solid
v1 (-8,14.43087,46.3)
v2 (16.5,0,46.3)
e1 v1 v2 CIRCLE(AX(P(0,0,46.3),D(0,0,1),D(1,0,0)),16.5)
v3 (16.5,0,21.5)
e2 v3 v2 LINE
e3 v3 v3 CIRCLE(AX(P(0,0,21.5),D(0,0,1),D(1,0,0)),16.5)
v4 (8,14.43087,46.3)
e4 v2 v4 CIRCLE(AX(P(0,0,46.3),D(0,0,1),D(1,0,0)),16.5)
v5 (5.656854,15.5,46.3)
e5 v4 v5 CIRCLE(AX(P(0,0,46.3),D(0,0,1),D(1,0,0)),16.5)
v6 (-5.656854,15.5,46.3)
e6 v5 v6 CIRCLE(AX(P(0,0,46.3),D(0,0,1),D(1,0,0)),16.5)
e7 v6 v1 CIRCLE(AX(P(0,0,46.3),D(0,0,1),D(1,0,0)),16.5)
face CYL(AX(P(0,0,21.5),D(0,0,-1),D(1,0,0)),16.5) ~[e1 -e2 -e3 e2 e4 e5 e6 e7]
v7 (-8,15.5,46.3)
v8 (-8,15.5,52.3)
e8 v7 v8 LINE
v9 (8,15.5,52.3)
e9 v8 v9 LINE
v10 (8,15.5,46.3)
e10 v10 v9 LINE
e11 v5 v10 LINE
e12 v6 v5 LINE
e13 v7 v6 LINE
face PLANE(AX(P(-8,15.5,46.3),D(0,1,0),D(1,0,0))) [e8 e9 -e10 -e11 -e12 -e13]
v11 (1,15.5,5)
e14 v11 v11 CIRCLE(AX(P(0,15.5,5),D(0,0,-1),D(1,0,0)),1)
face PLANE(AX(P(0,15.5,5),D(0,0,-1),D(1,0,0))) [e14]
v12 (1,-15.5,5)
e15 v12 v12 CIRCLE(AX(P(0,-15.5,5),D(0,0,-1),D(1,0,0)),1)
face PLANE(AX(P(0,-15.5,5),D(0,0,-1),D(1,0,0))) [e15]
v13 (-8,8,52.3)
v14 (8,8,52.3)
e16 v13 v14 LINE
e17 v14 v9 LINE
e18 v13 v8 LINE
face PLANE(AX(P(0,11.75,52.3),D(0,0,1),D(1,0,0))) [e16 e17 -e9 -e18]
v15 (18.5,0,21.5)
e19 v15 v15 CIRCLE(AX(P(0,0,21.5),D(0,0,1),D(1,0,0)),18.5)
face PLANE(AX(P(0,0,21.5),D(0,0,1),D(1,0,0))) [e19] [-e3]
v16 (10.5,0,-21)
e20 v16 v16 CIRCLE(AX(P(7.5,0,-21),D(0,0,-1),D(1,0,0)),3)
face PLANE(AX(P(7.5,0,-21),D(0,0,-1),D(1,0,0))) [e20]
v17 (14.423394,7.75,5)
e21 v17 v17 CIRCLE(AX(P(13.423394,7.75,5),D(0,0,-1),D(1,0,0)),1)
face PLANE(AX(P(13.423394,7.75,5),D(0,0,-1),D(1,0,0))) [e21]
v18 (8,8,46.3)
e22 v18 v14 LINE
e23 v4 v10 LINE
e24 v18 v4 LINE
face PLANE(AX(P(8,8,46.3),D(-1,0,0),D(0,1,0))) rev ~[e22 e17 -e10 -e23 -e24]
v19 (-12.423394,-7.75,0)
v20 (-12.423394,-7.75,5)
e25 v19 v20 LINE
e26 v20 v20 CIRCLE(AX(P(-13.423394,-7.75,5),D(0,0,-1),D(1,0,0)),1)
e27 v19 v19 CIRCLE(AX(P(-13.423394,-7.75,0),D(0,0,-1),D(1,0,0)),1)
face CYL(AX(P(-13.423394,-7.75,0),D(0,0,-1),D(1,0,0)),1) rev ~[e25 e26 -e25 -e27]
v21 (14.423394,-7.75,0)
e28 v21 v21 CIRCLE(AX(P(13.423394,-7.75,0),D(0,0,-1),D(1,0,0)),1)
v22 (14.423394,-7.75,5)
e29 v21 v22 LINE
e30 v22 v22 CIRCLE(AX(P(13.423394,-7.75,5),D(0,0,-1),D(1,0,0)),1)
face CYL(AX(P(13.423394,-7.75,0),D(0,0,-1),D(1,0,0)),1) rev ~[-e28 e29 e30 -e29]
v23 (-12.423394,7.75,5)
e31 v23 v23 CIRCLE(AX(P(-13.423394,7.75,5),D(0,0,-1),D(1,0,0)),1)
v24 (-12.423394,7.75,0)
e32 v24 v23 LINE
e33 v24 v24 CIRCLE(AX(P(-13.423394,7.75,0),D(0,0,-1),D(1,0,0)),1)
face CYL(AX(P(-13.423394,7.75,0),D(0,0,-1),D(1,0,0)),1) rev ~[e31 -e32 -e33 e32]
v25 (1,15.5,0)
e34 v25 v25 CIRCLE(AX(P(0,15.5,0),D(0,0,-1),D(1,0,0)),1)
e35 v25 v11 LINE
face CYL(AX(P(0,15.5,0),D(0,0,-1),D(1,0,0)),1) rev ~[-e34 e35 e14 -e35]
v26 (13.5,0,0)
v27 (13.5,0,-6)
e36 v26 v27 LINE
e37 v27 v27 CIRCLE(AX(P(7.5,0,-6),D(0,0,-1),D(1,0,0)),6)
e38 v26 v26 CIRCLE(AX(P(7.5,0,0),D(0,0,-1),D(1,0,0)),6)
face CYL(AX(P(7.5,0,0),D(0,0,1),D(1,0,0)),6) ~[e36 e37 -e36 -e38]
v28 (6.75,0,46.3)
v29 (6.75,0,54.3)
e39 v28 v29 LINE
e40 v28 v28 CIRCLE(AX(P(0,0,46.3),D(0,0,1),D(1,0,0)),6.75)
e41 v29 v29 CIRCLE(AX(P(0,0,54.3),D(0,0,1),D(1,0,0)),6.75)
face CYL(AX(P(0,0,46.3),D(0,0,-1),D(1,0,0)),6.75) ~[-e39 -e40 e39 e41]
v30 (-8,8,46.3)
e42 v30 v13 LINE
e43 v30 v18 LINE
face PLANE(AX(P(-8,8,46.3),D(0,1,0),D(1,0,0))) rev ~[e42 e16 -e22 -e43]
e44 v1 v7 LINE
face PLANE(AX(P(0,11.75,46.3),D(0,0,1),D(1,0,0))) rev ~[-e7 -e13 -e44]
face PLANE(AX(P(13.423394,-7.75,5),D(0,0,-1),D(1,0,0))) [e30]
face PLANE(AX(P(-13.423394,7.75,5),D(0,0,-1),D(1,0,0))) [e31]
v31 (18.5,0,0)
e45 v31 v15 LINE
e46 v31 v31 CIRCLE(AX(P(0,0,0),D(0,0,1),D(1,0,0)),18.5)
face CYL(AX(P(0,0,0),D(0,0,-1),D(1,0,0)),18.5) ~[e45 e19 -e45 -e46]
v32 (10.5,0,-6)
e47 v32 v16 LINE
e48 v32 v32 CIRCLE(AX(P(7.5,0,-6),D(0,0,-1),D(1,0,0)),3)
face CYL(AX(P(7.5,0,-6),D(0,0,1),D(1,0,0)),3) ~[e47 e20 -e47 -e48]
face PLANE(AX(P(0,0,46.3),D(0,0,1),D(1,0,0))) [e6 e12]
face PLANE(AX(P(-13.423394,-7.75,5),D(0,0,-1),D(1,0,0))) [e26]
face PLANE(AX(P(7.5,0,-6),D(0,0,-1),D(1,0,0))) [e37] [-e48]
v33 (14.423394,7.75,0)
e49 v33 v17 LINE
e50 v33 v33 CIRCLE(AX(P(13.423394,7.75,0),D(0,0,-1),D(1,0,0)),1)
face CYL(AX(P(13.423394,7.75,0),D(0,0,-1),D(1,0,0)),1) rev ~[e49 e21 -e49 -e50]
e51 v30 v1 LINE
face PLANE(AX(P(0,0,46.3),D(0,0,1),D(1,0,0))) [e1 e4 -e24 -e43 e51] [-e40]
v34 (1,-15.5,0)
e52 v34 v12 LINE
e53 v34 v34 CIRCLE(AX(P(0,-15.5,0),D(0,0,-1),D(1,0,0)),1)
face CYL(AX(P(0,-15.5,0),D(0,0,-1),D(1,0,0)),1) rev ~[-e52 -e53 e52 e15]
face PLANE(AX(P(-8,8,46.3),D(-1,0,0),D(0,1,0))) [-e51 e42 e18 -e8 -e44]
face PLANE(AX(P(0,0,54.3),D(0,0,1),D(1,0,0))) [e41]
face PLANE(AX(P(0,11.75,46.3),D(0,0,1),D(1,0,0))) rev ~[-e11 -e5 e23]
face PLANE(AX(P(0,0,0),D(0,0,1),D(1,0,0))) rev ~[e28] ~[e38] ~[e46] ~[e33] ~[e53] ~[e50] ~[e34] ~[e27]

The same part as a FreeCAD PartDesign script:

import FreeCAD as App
import Part
import Sketcher

doc = App.newDocument("Part")
body = doc.addObject("PartDesign::Body", "Body")

sketch1 = body.newObject("Sketcher::SketchObject", "Sketch")
sketch1.AttachmentSupport = (doc.getObject("XY_Plane"), [""])
sketch1.MapMode = "FlatFace"
sketch1.addGeometry(Part.Circle(App.Vector(0, 0, 0), App.Vector(0, 0, 1), 18), False)
sketch1.addConstraint([
    Sketcher.Constraint("Coincident", 0, 3, -1, 1),
    Sketcher.Constraint("Diameter", 0, 37.0),
])
pad1 = body.newObject("PartDesign::Pad", "Pad")
pad1.Profile = sketch1
pad1.Length = 21.5

sketch2 = body.newObject("Sketcher::SketchObject", "Sketch001")
sketch2.AttachmentSupport = (doc.getObject("XY_Plane"), [""])
sketch2.MapMode = "FlatFace"
sketch2.addGeometry(Part.Circle(App.Vector(8, 0, 0), App.Vector(0, 0, 1), 6), False)
sketch2.addConstraint([
    Sketcher.Constraint("PointOnObject", 0, 3, -1),
    Sketcher.Constraint("Diameter", 0, 12.0),
    Sketcher.Constraint("DistanceX", -1, 1, 0, 3, 7.5),
])
pad2 = body.newObject("PartDesign::Pad", "Pad001")
pad2.Profile = sketch2
pad2.Length = 6
pad2.Reversed = True

sketch3 = body.newObject("Sketcher::SketchObject", "Sketch002")
sketch3.AttachmentSupport = (doc.getObject("XY_Plane"), [""])
sketch3.MapMode = "FlatFace"
sketch3.AttachmentOffset = App.Placement(App.Vector(0, 0, -6), App.Rotation())
sketch3.addGeometry(Part.Circle(App.Vector(7.5, 0, 0), App.Vector(0, 0, 1), 3), False)
sketch3.addConstraint([
    Sketcher.Constraint("PointOnObject", 0, 3, -1),
    Sketcher.Constraint("Diameter", 0, 6.0),
    Sketcher.Constraint("DistanceX", -1, 1, 0, 3, 7.5),
])
pad3 = body.newObject("PartDesign::Pad", "Pad002")
pad3.Profile = sketch3
pad3.Length = 15
pad3.Reversed = True

sketch4 = body.newObject("Sketcher::SketchObject", "Sketch003")
sketch4.AttachmentSupport = (doc.getObject("XY_Plane"), [""])
sketch4.MapMode = "FlatFace"
sketch4.addGeometry([
    Part.Circle(App.Vector(0, -15.5, 0), App.Vector(0, 0, 1), 1),
    Part.Circle(App.Vector(13.4, -7.8, 0), App.Vector(0, 0, 1), 1),
    Part.Circle(App.Vector(13.4, 7.8, 0), App.Vector(0, 0, 1), 1),
    Part.Circle(App.Vector(0, 15.5, 0), App.Vector(0, 0, 1), 1),
    Part.Circle(App.Vector(-13.4, 7.8, 0), App.Vector(0, 0, 1), 1),
    Part.Circle(App.Vector(-13.4, -7.8, 0), App.Vector(0, 0, 1), 1),
], False)
sketch4.addConstraint([
    Sketcher.Constraint("Equal", 0, 1),
    Sketcher.Constraint("Equal", 1, 2),
    Sketcher.Constraint("Equal", 2, 3),
    Sketcher.Constraint("Equal", 3, 4),
    Sketcher.Constraint("Equal", 4, 5),
    Sketcher.Constraint("Symmetric", 0, 3, 3, 3, -1, 1),
    Sketcher.Constraint("Symmetric", 1, 3, 4, 3, -1, 1),
    Sketcher.Constraint("Symmetric", 2, 3, 5, 3, -1, 1),
    Sketcher.Constraint("Symmetric", 2, 3, 4, 3, -2),
    Sketcher.Constraint("PointOnObject", 0, 3, -2),
    Sketcher.Constraint("Diameter", 0, 2.0),
    Sketcher.Constraint("DistanceY", 0, 3, 3, 3, 31.0),
    Sketcher.Constraint("DistanceY", 1, 3, 2, 3, 15.5),
    Sketcher.Constraint("DistanceX", 4, 3, 2, 3, 26.846788),
])
pocket1 = body.newObject("PartDesign::Pocket", "Pocket")
pocket1.Profile = sketch4
pocket1.Length = 5
pocket1.Reversed = True

sketch5 = body.newObject("Sketcher::SketchObject", "Sketch004")
sketch5.AttachmentSupport = (doc.getObject("XY_Plane"), [""])
sketch5.MapMode = "FlatFace"
sketch5.AttachmentOffset = App.Placement(App.Vector(0, 0, 21.5), App.Rotation())
sketch5.addGeometry(Part.Circle(App.Vector(0, 0, 0), App.Vector(0, 0, 1), 16), False)
sketch5.addConstraint([
    Sketcher.Constraint("Coincident", 0, 3, -1, 1),
    Sketcher.Constraint("Diameter", 0, 33.0),
])
pad4 = body.newObject("PartDesign::Pad", "Pad003")
pad4.Profile = sketch5
pad4.Length = 24.8

sketch6 = body.newObject("Sketcher::SketchObject", "Sketch005")
sketch6.AttachmentSupport = (doc.getObject("XY_Plane"), [""])
sketch6.MapMode = "FlatFace"
sketch6.AttachmentOffset = App.Placement(App.Vector(0, 0, 46.3), App.Rotation())
sketch6.addGeometry([
    Part.LineSegment(App.Vector(-8, 16, 0), App.Vector(-8, 8, 0)),
    Part.LineSegment(App.Vector(-8, 8, 0), App.Vector(8, 8, 0)),
    Part.LineSegment(App.Vector(8, 8, 0), App.Vector(8, 16, 0)),
    Part.LineSegment(App.Vector(8, 16, 0), App.Vector(-8, 16, 0)),
], False)
sketch6.addConstraint([
    Sketcher.Constraint("Coincident", 0, 2, 1, 1),
    Sketcher.Constraint("Coincident", 1, 2, 2, 1),
    Sketcher.Constraint("Coincident", 2, 2, 3, 1),
    Sketcher.Constraint("Coincident", 3, 2, 0, 1),
    Sketcher.Constraint("Vertical", 0),
    Sketcher.Constraint("Horizontal", 1),
    Sketcher.Constraint("Vertical", 2),
    Sketcher.Constraint("Horizontal", 3),
    Sketcher.Constraint("DistanceX", 1, 1, 1, 2, 16.0),
    Sketcher.Constraint("DistanceY", 0, 2, 0, 1, 7.5),
    Sketcher.Constraint("DistanceX", 0, 2, -1, 1, 8.0),
    Sketcher.Constraint("DistanceY", -1, 1, 0, 2, 8.0),
])
pad5 = body.newObject("PartDesign::Pad", "Pad004")
pad5.Profile = sketch6
pad5.Length = 6

sketch7 = body.newObject("Sketcher::SketchObject", "Sketch006")
sketch7.AttachmentSupport = (doc.getObject("XY_Plane"), [""])
sketch7.MapMode = "FlatFace"
sketch7.AttachmentOffset = App.Placement(App.Vector(0, 0, 46.3), App.Rotation())
sketch7.addGeometry(Part.Circle(App.Vector(0, 0, 0), App.Vector(0, 0, 1), 7), False)
sketch7.addConstraint([
    Sketcher.Constraint("Coincident", 0, 3, -1, 1),
    Sketcher.Constraint("Diameter", 0, 13.5),
])
pad6 = body.newObject("PartDesign::Pad", "Pad005")
pad6.Profile = sketch7
pad6.Length = 8

doc.recompute()
